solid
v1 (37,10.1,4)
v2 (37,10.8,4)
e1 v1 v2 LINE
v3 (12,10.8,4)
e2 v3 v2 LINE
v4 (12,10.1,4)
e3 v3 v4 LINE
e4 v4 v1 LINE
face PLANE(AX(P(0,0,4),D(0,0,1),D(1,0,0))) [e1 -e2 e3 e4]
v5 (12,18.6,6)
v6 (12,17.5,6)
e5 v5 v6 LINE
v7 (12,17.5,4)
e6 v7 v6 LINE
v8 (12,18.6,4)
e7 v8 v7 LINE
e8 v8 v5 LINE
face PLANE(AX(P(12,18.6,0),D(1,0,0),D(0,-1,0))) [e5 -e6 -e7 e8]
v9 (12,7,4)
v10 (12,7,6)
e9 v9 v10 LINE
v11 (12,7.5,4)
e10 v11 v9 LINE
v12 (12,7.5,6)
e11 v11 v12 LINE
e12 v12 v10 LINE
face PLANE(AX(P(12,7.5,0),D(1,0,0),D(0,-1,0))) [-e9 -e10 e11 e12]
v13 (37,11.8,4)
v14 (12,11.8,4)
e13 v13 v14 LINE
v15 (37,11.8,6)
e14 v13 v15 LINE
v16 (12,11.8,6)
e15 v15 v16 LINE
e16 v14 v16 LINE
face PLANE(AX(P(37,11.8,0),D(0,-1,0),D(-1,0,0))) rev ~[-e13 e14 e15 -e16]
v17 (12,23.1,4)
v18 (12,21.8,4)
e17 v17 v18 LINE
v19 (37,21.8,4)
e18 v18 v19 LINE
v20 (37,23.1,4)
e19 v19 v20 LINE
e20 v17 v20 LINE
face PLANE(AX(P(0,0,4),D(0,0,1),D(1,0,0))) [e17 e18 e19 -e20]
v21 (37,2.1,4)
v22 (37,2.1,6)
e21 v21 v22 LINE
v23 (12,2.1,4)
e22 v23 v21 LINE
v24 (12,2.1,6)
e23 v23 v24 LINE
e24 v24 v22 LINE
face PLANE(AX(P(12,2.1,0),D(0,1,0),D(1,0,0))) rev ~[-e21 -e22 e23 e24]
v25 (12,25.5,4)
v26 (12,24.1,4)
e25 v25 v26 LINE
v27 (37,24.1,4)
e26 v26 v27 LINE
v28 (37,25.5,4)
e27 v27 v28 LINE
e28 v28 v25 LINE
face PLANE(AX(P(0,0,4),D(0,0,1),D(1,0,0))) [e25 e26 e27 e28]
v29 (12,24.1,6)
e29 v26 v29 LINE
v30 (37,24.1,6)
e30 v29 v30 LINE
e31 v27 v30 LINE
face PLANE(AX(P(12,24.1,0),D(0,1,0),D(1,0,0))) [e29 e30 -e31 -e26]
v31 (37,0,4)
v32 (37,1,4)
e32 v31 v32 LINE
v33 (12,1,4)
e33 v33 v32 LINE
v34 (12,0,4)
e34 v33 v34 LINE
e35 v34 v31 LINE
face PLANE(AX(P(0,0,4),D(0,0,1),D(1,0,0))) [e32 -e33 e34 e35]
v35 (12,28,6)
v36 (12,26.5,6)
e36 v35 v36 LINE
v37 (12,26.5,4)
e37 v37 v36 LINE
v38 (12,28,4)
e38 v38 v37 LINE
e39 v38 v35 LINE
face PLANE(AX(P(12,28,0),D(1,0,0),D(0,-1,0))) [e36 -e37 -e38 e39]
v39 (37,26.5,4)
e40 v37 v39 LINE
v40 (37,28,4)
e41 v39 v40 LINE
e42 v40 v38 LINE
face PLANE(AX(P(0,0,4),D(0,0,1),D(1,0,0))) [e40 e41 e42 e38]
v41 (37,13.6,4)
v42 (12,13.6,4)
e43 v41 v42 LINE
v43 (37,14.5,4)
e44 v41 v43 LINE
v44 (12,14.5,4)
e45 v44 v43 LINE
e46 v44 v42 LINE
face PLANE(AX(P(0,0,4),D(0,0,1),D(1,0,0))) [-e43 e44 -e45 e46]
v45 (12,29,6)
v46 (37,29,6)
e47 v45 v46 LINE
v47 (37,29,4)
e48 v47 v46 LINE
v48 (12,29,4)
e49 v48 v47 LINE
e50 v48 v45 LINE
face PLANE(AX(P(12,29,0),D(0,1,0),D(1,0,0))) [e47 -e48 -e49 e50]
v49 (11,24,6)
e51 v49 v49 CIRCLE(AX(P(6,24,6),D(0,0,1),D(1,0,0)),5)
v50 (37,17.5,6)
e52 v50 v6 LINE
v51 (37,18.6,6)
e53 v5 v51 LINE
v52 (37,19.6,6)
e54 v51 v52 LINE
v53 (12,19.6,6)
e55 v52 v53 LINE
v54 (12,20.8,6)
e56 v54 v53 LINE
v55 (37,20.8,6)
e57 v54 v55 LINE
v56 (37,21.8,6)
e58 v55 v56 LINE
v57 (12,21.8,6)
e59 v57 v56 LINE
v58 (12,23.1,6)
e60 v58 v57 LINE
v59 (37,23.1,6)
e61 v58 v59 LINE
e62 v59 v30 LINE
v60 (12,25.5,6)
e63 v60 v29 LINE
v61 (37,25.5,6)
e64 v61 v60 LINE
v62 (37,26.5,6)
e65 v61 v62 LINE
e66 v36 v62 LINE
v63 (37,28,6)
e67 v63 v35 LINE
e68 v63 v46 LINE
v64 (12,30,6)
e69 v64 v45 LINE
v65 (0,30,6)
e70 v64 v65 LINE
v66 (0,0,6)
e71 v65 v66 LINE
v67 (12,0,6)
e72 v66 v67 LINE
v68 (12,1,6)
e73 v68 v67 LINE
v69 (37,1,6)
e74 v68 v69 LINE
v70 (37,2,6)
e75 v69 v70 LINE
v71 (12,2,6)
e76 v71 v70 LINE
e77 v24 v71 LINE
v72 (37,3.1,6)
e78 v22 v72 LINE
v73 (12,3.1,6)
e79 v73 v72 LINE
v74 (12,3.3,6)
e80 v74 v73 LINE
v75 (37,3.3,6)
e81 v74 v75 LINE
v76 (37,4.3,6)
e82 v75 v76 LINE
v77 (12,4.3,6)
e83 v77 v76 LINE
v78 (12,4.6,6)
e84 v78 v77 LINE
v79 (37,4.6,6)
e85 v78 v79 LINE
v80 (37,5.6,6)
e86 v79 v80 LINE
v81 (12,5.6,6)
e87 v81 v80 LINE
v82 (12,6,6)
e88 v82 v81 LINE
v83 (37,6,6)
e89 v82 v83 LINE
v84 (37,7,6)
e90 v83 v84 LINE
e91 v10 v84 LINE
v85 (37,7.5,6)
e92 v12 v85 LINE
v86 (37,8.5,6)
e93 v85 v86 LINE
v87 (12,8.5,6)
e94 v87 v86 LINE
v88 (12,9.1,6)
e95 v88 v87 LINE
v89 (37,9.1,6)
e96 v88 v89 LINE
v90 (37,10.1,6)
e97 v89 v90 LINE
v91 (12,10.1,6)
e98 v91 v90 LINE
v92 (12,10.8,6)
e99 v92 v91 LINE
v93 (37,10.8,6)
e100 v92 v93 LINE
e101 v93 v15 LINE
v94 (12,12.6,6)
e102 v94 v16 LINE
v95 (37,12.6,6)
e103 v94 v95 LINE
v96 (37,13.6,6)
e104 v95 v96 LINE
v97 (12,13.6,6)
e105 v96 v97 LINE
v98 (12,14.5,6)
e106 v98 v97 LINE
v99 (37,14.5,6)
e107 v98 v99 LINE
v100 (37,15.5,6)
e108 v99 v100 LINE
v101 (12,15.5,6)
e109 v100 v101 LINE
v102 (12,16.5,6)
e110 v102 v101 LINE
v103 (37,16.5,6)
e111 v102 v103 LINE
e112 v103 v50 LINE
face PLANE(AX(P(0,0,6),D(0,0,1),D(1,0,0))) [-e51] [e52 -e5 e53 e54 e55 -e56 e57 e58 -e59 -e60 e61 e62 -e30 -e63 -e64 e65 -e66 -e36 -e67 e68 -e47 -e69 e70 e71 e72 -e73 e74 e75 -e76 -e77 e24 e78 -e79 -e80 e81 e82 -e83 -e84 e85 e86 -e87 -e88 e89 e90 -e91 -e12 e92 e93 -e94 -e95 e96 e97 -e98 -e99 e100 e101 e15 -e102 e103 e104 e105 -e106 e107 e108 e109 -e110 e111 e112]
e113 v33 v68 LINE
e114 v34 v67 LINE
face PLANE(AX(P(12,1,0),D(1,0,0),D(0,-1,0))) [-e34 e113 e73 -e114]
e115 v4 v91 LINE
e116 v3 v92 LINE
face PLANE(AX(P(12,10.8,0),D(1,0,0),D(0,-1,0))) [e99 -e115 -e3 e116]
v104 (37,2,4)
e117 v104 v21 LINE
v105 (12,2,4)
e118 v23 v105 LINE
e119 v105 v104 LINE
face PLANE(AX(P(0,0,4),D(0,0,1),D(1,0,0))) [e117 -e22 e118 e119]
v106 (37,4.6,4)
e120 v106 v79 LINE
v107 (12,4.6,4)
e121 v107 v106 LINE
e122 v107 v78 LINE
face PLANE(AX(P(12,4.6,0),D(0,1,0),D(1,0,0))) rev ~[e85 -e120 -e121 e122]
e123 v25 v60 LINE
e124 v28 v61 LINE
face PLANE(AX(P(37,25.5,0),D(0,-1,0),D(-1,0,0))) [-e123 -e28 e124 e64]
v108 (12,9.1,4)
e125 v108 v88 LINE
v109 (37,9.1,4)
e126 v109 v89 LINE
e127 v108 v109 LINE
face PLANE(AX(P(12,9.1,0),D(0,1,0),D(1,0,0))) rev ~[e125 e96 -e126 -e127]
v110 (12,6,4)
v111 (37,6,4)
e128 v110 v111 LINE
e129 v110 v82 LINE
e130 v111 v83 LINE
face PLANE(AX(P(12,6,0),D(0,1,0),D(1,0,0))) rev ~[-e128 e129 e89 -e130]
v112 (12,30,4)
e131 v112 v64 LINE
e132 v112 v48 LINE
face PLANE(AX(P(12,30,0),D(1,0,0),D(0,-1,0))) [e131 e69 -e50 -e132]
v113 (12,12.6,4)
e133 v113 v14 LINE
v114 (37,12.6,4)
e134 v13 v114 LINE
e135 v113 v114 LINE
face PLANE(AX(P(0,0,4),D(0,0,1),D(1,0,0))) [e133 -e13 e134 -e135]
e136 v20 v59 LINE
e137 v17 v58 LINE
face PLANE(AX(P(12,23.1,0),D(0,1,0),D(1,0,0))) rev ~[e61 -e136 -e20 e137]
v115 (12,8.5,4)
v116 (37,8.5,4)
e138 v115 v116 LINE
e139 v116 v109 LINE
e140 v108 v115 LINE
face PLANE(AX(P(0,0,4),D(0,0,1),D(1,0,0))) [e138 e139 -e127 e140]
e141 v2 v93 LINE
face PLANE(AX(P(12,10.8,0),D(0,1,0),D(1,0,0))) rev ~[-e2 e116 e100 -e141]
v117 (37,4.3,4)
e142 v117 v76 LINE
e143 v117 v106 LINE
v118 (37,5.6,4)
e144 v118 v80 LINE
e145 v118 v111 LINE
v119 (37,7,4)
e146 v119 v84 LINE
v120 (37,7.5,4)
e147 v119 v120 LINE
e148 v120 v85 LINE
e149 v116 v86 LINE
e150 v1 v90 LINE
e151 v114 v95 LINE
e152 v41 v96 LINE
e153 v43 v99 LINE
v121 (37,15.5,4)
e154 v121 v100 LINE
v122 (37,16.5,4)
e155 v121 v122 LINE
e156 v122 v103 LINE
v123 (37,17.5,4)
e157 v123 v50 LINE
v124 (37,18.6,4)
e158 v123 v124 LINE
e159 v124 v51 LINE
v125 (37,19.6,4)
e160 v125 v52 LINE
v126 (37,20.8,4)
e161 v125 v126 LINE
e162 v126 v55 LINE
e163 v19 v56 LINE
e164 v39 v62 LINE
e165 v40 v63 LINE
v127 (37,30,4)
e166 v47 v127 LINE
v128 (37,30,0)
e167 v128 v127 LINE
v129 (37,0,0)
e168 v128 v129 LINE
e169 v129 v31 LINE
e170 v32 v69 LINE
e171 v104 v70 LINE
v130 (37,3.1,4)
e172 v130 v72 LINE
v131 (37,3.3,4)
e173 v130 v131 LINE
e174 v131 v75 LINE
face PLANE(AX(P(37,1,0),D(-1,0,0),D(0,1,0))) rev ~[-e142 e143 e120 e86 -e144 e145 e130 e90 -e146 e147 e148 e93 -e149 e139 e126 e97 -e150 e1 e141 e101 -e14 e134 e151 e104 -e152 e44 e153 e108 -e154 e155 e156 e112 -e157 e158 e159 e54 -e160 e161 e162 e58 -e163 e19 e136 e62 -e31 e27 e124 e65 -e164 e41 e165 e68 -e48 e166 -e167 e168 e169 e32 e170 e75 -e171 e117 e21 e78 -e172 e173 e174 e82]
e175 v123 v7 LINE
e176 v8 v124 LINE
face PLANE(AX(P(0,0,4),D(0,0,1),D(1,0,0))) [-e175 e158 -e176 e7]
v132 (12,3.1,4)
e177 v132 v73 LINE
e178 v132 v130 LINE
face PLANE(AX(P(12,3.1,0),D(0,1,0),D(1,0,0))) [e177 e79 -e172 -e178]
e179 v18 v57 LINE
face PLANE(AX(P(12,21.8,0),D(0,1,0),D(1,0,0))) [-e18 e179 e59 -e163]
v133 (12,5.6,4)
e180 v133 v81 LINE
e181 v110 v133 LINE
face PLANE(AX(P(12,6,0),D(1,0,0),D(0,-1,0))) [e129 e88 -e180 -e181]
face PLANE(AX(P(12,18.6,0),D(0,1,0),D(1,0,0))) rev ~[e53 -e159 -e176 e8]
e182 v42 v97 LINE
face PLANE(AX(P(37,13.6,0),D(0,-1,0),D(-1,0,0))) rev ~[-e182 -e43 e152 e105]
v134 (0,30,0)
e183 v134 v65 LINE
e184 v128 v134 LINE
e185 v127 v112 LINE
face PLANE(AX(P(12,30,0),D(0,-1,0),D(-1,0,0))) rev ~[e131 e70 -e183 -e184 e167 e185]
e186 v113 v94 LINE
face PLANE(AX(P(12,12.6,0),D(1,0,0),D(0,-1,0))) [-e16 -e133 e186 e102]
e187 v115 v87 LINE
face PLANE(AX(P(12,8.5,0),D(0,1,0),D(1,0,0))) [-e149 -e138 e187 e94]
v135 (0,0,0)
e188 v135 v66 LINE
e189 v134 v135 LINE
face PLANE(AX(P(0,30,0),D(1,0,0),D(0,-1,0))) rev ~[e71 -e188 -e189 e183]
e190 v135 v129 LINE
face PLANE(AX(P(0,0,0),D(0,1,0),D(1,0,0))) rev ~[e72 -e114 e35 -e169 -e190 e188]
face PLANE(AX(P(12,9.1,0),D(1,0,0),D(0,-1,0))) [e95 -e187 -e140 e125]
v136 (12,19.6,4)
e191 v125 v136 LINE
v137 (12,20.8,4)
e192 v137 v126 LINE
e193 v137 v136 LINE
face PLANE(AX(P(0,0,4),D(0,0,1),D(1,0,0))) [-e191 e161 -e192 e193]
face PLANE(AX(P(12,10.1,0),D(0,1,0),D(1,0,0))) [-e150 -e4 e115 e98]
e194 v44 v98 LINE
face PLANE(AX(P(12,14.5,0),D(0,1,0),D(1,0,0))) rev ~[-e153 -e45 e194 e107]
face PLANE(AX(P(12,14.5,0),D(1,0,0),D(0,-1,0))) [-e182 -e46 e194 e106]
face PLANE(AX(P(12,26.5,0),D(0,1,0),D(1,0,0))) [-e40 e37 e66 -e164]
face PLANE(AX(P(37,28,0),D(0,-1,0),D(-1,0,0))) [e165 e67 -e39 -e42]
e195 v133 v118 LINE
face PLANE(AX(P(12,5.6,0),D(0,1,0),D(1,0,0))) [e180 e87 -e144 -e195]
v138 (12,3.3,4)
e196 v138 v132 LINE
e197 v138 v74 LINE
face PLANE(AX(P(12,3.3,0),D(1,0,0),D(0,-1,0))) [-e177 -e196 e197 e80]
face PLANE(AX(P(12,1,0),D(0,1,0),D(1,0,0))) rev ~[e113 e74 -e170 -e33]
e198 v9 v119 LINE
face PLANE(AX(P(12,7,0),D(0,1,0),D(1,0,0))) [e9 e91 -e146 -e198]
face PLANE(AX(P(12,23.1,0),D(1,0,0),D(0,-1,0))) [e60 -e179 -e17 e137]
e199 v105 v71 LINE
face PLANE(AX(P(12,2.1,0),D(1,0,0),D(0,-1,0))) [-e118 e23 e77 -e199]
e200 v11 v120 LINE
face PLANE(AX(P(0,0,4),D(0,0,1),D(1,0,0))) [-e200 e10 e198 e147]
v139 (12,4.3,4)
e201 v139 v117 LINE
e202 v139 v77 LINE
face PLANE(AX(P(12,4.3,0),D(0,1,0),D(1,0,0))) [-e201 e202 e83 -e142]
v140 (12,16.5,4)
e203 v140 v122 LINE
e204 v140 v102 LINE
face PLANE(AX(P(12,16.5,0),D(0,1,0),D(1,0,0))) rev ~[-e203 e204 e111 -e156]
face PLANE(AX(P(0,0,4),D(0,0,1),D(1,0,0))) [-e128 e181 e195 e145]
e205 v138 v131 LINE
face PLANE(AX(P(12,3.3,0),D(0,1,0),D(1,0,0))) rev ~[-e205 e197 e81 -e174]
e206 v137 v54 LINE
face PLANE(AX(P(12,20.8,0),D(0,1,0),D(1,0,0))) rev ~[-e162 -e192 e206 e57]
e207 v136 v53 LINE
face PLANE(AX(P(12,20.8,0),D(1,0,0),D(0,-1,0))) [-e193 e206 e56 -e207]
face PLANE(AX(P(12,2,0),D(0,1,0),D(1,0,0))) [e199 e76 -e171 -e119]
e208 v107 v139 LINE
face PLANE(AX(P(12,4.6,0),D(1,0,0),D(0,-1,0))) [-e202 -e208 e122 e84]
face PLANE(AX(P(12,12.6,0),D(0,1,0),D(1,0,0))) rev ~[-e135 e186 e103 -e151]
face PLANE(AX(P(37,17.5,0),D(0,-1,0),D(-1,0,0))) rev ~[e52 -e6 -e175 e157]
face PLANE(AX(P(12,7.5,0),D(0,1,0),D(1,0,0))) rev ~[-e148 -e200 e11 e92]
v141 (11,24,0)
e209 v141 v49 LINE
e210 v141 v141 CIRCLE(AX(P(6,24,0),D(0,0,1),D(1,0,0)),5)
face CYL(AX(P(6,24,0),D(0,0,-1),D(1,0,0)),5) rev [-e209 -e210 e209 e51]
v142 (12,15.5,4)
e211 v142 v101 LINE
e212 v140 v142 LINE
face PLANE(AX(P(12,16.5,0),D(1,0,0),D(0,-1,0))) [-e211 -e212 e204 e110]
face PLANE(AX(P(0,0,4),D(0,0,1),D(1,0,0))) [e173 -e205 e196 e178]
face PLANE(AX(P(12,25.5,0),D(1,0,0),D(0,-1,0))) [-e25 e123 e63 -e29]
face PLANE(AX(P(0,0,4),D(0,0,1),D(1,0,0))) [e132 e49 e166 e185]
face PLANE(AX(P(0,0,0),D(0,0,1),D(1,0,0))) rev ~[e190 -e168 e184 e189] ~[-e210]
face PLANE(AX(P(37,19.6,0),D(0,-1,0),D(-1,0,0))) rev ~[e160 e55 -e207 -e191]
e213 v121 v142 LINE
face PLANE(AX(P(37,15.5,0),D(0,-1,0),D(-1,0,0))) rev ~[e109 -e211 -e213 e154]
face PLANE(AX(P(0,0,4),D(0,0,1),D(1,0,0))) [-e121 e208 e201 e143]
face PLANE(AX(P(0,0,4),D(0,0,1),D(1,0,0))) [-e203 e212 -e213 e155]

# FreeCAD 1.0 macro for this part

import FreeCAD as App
import Part
import Sketcher
from FreeCAD import Vector

doc = App.newDocument("Part")
body = doc.addObject("PartDesign::Body", "Body")

sketch1 = body.newObject("Sketcher::SketchObject", "Sketch")
sketch1.AttachmentSupport = (doc.getObject("XY_Plane"), [""])
sketch1.MapMode = "FlatFace"
sketch1.addGeometry(Part.LineSegment(Vector(0, 30, 0), Vector(0, 0, 0)), False)
sketch1.addGeometry(Part.LineSegment(Vector(0, 0, 0), Vector(12, 0, 0)), False)
sketch1.addGeometry(Part.LineSegment(Vector(12, 0, 0), Vector(12, 30, 0)), False)
sketch1.addGeometry(Part.LineSegment(Vector(12, 30, 0), Vector(0, 30, 0)), False)
sketch1.addGeometry(Part.Circle(Vector(6, 24, 0), Vector(0, 0, 1), 5), False)
sketch1.addConstraint(Sketcher.Constraint("Coincident", 0, 2, 1, 1))
sketch1.addConstraint(Sketcher.Constraint("Coincident", 1, 2, 2, 1))
sketch1.addConstraint(Sketcher.Constraint("Coincident", 2, 2, 3, 1))
sketch1.addConstraint(Sketcher.Constraint("Coincident", 3, 2, 0, 1))
sketch1.addConstraint(Sketcher.Constraint("Vertical", 0))
sketch1.addConstraint(Sketcher.Constraint("Horizontal", 1))
sketch1.addConstraint(Sketcher.Constraint("Vertical", 2))
sketch1.addConstraint(Sketcher.Constraint("Horizontal", 3))
sketch1.addConstraint(Sketcher.Constraint("Coincident", 0, 2, -1, 1))
sketch1.addConstraint(Sketcher.Constraint("Diameter", 4, 10.0))
sketch1.addConstraint(Sketcher.Constraint("DistanceY", 0, 2, 0, 1, 30.0))
sketch1.addConstraint(Sketcher.Constraint("DistanceX", 1, 1, 1, 2, 12.0))
sketch1.addConstraint(Sketcher.Constraint("DistanceX", -1, 1, 4, 3, 6.0))
sketch1.addConstraint(Sketcher.Constraint("DistanceY", -1, 1, 4, 3, 24.0))
pad1 = body.newObject("PartDesign::Pad", "Pad")
pad1.Profile = sketch1
pad1.Length = 6

sketch2 = body.newObject("Sketcher::SketchObject", "Sketch001")
sketch2.AttachmentSupport = (doc.getObject("XY_Plane"), [""])
sketch2.MapMode = "FlatFace"
sketch2.addGeometry(Part.LineSegment(Vector(12, 2, 0), Vector(12, 1, 0)), False)
sketch2.addGeometry(Part.LineSegment(Vector(12, 1, 0), Vector(37, 1, 0)), False)
sketch2.addGeometry(Part.LineSegment(Vector(37, 1, 0), Vector(37, 2, 0)), False)
sketch2.addGeometry(Part.LineSegment(Vector(37, 2, 0), Vector(12, 2, 0)), False)
sketch2.addGeometry(Part.LineSegment(Vector(37, 29, 0), Vector(12, 29, 0)), False)
sketch2.addGeometry(Part.LineSegment(Vector(12, 29, 0), Vector(12, 28, 0)), False)
sketch2.addGeometry(Part.LineSegment(Vector(12, 28, 0), Vector(37, 28, 0)), False)
sketch2.addGeometry(Part.LineSegment(Vector(37, 28, 0), Vector(37, 29, 0)), False)
sketch2.addGeometry(Part.LineSegment(Vector(12, 3.1, 0), Vector(12, 2.1, 0)), False)
sketch2.addGeometry(Part.LineSegment(Vector(12, 2.1, 0), Vector(37, 2.1, 0)), False)
sketch2.addGeometry(Part.LineSegment(Vector(37, 2.1, 0), Vector(37, 3.1, 0)), False)
sketch2.addGeometry(Part.LineSegment(Vector(37, 3.1, 0), Vector(12, 3.1, 0)), False)
sketch2.addGeometry(Part.LineSegment(Vector(37, 26.5, 0), Vector(12, 26.5, 0)), False)
sketch2.addGeometry(Part.LineSegment(Vector(12, 26.5, 0), Vector(12, 25.5, 0)), False)
sketch2.addGeometry(Part.LineSegment(Vector(12, 25.5, 0), Vector(37, 25.5, 0)), False)
sketch2.addGeometry(Part.LineSegment(Vector(37, 25.5, 0), Vector(37, 26.5, 0)), False)
sketch2.addGeometry(Part.LineSegment(Vector(12, 4.3, 0), Vector(12, 3.3, 0)), False)
sketch2.addGeometry(Part.LineSegment(Vector(12, 3.3, 0), Vector(37, 3.3, 0)), False)
sketch2.addGeometry(Part.LineSegment(Vector(37, 3.3, 0), Vector(37, 4.3, 0)), False)
sketch2.addGeometry(Part.LineSegment(Vector(37, 4.3, 0), Vector(12, 4.3, 0)), False)
sketch2.addGeometry(Part.LineSegment(Vector(37, 24.1, 0), Vector(12, 24.1, 0)), False)
sketch2.addGeometry(Part.LineSegment(Vector(12, 24.1, 0), Vector(12, 23.1, 0)), False)
sketch2.addGeometry(Part.LineSegment(Vector(12, 23.1, 0), Vector(37, 23.1, 0)), False)
sketch2.addGeometry(Part.LineSegment(Vector(37, 23.1, 0), Vector(37, 24.1, 0)), False)
sketch2.addGeometry(Part.LineSegment(Vector(12, 5.6, 0), Vector(12, 4.6, 0)), False)
sketch2.addGeometry(Part.LineSegment(Vector(12, 4.6, 0), Vector(37, 4.6, 0)), False)
sketch2.addGeometry(Part.LineSegment(Vector(37, 4.6, 0), Vector(37, 5.6, 0)), False)
sketch2.addGeometry(Part.LineSegment(Vector(37, 5.6, 0), Vector(12, 5.6, 0)), False)
sketch2.addGeometry(Part.LineSegment(Vector(37, 21.8, 0), Vector(12, 21.8, 0)), False)
sketch2.addGeometry(Part.LineSegment(Vector(12, 21.8, 0), Vector(12, 20.8, 0)), False)
sketch2.addGeometry(Part.LineSegment(Vector(12, 20.8, 0), Vector(37, 20.8, 0)), False)
sketch2.addGeometry(Part.LineSegment(Vector(37, 20.8, 0), Vector(37, 21.8, 0)), False)
sketch2.addGeometry(Part.LineSegment(Vector(12, 7, 0), Vector(12, 6, 0)), False)
sketch2.addGeometry(Part.LineSegment(Vector(12, 6, 0), Vector(37, 6, 0)), False)
sketch2.addGeometry(Part.LineSegment(Vector(37, 6, 0), Vector(37, 7, 0)), False)
sketch2.addGeometry(Part.LineSegment(Vector(37, 7, 0), Vector(12, 7, 0)), False)
sketch2.addGeometry(Part.LineSegment(Vector(37, 19.6, 0), Vector(12, 19.6, 0)), False)
sketch2.addGeometry(Part.LineSegment(Vector(12, 19.6, 0), Vector(12, 18.6, 0)), False)
sketch2.addGeometry(Part.LineSegment(Vector(12, 18.6, 0), Vector(37, 18.6, 0)), False)
sketch2.addGeometry(Part.LineSegment(Vector(37, 18.6, 0), Vector(37, 19.6, 0)), False)
sketch2.addGeometry(Part.LineSegment(Vector(12, 8.5, 0), Vector(12, 7.5, 0)), False)
sketch2.addGeometry(Part.LineSegment(Vector(12, 7.5, 0), Vector(37, 7.5, 0)), False)
sketch2.addGeometry(Part.LineSegment(Vector(37, 7.5, 0), Vector(37, 8.5, 0)), False)
sketch2.addGeometry(Part.LineSegment(Vector(37, 8.5, 0), Vector(12, 8.5, 0)), False)
sketch2.addGeometry(Part.LineSegment(Vector(37, 17.5, 0), Vector(12, 17.5, 0)), False)
sketch2.addGeometry(Part.LineSegment(Vector(12, 17.5, 0), Vector(12, 16.5, 0)), False)
sketch2.addGeometry(Part.LineSegment(Vector(12, 16.5, 0), Vector(37, 16.5, 0)), False)
sketch2.addGeometry(Part.LineSegment(Vector(37, 16.5, 0), Vector(37, 17.5, 0)), False)
sketch2.addGeometry(Part.LineSegment(Vector(12, 10.1, 0), Vector(12, 9.1, 0)), False)
sketch2.addGeometry(Part.LineSegment(Vector(12, 9.1, 0), Vector(37, 9.1, 0)), False)
sketch2.addGeometry(Part.LineSegment(Vector(37, 9.1, 0), Vector(37, 10.1, 0)), False)
sketch2.addGeometry(Part.LineSegment(Vector(37, 10.1, 0), Vector(12, 10.1, 0)), False)
sketch2.addGeometry(Part.LineSegment(Vector(37, 15.5, 0), Vector(12, 15.5, 0)), False)
sketch2.addGeometry(Part.LineSegment(Vector(12, 15.5, 0), Vector(12, 14.5, 0)), False)
sketch2.addGeometry(Part.LineSegment(Vector(12, 14.5, 0), Vector(37, 14.5, 0)), False)
sketch2.addGeometry(Part.LineSegment(Vector(37, 14.5, 0), Vector(37, 15.5, 0)), False)
sketch2.addGeometry(Part.LineSegment(Vector(12, 11.8, 0), Vector(12, 10.8, 0)), False)
sketch2.addGeometry(Part.LineSegment(Vector(12, 10.8, 0), Vector(37, 10.8, 0)), False)
sketch2.addGeometry(Part.LineSegment(Vector(37, 10.8, 0), Vector(37, 11.8, 0)), False)
sketch2.addGeometry(Part.LineSegment(Vector(37, 11.8, 0), Vector(12, 11.8, 0)), False)
sketch2.addGeometry(Part.LineSegment(Vector(37, 13.6, 0), Vector(12, 13.6, 0)), False)
sketch2.addGeometry(Part.LineSegment(Vector(12, 13.6, 0), Vector(12, 12.6, 0)), False)
sketch2.addGeometry(Part.LineSegment(Vector(12, 12.6, 0), Vector(37, 12.6, 0)), False)
sketch2.addGeometry(Part.LineSegment(Vector(37, 12.6, 0), Vector(37, 13.6, 0)), False)
sketch2.addConstraint(Sketcher.Constraint("Coincident", 0, 2, 1, 1))
sketch2.addConstraint(Sketcher.Constraint("Coincident", 1, 2, 2, 1))
sketch2.addConstraint(Sketcher.Constraint("Coincident", 2, 2, 3, 1))
sketch2.addConstraint(Sketcher.Constraint("Coincident", 3, 2, 0, 1))
sketch2.addConstraint(Sketcher.Constraint("Coincident", 4, 2, 5, 1))
sketch2.addConstraint(Sketcher.Constraint("Coincident", 5, 2, 6, 1))
sketch2.addConstraint(Sketcher.Constraint("Coincident", 6, 2, 7, 1))
sketch2.addConstraint(Sketcher.Constraint("Coincident", 7, 2, 4, 1))
sketch2.addConstraint(Sketcher.Constraint("Coincident", 8, 2, 9, 1))
sketch2.addConstraint(Sketcher.Constraint("Coincident", 9, 2, 10, 1))
sketch2.addConstraint(Sketcher.Constraint("Coincident", 10, 2, 11, 1))
sketch2.addConstraint(Sketcher.Constraint("Coincident", 11, 2, 8, 1))
sketch2.addConstraint(Sketcher.Constraint("Coincident", 12, 2, 13, 1))
sketch2.addConstraint(Sketcher.Constraint("Coincident", 13, 2, 14, 1))
sketch2.addConstraint(Sketcher.Constraint("Coincident", 14, 2, 15, 1))
sketch2.addConstraint(Sketcher.Constraint("Coincident", 15, 2, 12, 1))
sketch2.addConstraint(Sketcher.Constraint("Coincident", 16, 2, 17, 1))
sketch2.addConstraint(Sketcher.Constraint("Coincident", 17, 2, 18, 1))
sketch2.addConstraint(Sketcher.Constraint("Coincident", 18, 2, 19, 1))
sketch2.addConstraint(Sketcher.Constraint("Coincident", 19, 2, 16, 1))
sketch2.addConstraint(Sketcher.Constraint("Coincident", 20, 2, 21, 1))
sketch2.addConstraint(Sketcher.Constraint("Coincident", 21, 2, 22, 1))
sketch2.addConstraint(Sketcher.Constraint("Coincident", 22, 2, 23, 1))
sketch2.addConstraint(Sketcher.Constraint("Coincident", 23, 2, 20, 1))
sketch2.addConstraint(Sketcher.Constraint("Coincident", 24, 2, 25, 1))
sketch2.addConstraint(Sketcher.Constraint("Coincident", 25, 2, 26, 1))
sketch2.addConstraint(Sketcher.Constraint("Coincident", 26, 2, 27, 1))
sketch2.addConstraint(Sketcher.Constraint("Coincident", 27, 2, 24, 1))
sketch2.addConstraint(Sketcher.Constraint("Coincident", 28, 2, 29, 1))
sketch2.addConstraint(Sketcher.Constraint("Coincident", 29, 2, 30, 1))
sketch2.addConstraint(Sketcher.Constraint("Coincident", 30, 2, 31, 1))
sketch2.addConstraint(Sketcher.Constraint("Coincident", 31, 2, 28, 1))
sketch2.addConstraint(Sketcher.Constraint("Coincident", 32, 2, 33, 1))
sketch2.addConstraint(Sketcher.Constraint("Coincident", 33, 2, 34, 1))
sketch2.addConstraint(Sketcher.Constraint("Coincident", 34, 2, 35, 1))
sketch2.addConstraint(Sketcher.Constraint("Coincident", 35, 2, 32, 1))
sketch2.addConstraint(Sketcher.Constraint("Coincident", 36, 2, 37, 1))
sketch2.addConstraint(Sketcher.Constraint("Coincident", 37, 2, 38, 1))
sketch2.addConstraint(Sketcher.Constraint("Coincident", 38, 2, 39, 1))
sketch2.addConstraint(Sketcher.Constraint("Coincident", 39, 2, 36, 1))
sketch2.addConstraint(Sketcher.Constraint("Coincident", 40, 2, 41, 1))
sketch2.addConstraint(Sketcher.Constraint("Coincident", 41, 2, 42, 1))
sketch2.addConstraint(Sketcher.Constraint("Coincident", 42, 2, 43, 1))
sketch2.addConstraint(Sketcher.Constraint("Coincident", 43, 2, 40, 1))
sketch2.addConstraint(Sketcher.Constraint("Coincident", 44, 2, 45, 1))
sketch2.addConstraint(Sketcher.Constraint("Coincident", 45, 2, 46, 1))
sketch2.addConstraint(Sketcher.Constraint("Coincident", 46, 2, 47, 1))
sketch2.addConstraint(Sketcher.Constraint("Coincident", 47, 2, 44, 1))
sketch2.addConstraint(Sketcher.Constraint("Coincident", 48, 2, 49, 1))
sketch2.addConstraint(Sketcher.Constraint("Coincident", 49, 2, 50, 1))
sketch2.addConstraint(Sketcher.Constraint("Coincident", 50, 2, 51, 1))
sketch2.addConstraint(Sketcher.Constraint("Coincident", 51, 2, 48, 1))
sketch2.addConstraint(Sketcher.Constraint("Coincident", 52, 2, 53, 1))
sketch2.addConstraint(Sketcher.Constraint("Coincident", 53, 2, 54, 1))
sketch2.addConstraint(Sketcher.Constraint("Coincident", 54, 2, 55, 1))
sketch2.addConstraint(Sketcher.Constraint("Coincident", 55, 2, 52, 1))
sketch2.addConstraint(Sketcher.Constraint("Coincident", 56, 2, 57, 1))
sketch2.addConstraint(Sketcher.Constraint("Coincident", 57, 2, 58, 1))
sketch2.addConstraint(Sketcher.Constraint("Coincident", 58, 2, 59, 1))
sketch2.addConstraint(Sketcher.Constraint("Coincident", 59, 2, 56, 1))
sketch2.addConstraint(Sketcher.Constraint("Coincident", 60, 2, 61, 1))
sketch2.addConstraint(Sketcher.Constraint("Coincident", 61, 2, 62, 1))
sketch2.addConstraint(Sketcher.Constraint("Coincident", 62, 2, 63, 1))
sketch2.addConstraint(Sketcher.Constraint("Coincident", 63, 2, 60, 1))
sketch2.addConstraint(Sketcher.Constraint("Vertical", 0))
sketch2.addConstraint(Sketcher.Constraint("Horizontal", 1))
sketch2.addConstraint(Sketcher.Constraint("Vertical", 2))
sketch2.addConstraint(Sketcher.Constraint("Horizontal", 3))
sketch2.addConstraint(Sketcher.Constraint("Horizontal", 4))
sketch2.addConstraint(Sketcher.Constraint("Vertical", 5))
sketch2.addConstraint(Sketcher.Constraint("Horizontal", 6))
sketch2.addConstraint(Sketcher.Constraint("Vertical", 7))
sketch2.addConstraint(Sketcher.Constraint("Vertical", 8))
sketch2.addConstraint(Sketcher.Constraint("Horizontal", 9))
sketch2.addConstraint(Sketcher.Constraint("Vertical", 10))
sketch2.addConstraint(Sketcher.Constraint("Horizontal", 11))
sketch2.addConstraint(Sketcher.Constraint("Horizontal", 12))
sketch2.addConstraint(Sketcher.Constraint("Vertical", 13))
sketch2.addConstraint(Sketcher.Constraint("Horizontal", 14))
sketch2.addConstraint(Sketcher.Constraint("Vertical", 15))
sketch2.addConstraint(Sketcher.Constraint("Vertical", 16))
sketch2.addConstraint(Sketcher.Constraint("Horizontal", 17))
sketch2.addConstraint(Sketcher.Constraint("Vertical", 18))
sketch2.addConstraint(Sketcher.Constraint("Horizontal", 19))
sketch2.addConstraint(Sketcher.Constraint("Horizontal", 20))
sketch2.addConstraint(Sketcher.Constraint("Vertical", 21))
sketch2.addConstraint(Sketcher.Constraint("Horizontal", 22))
sketch2.addConstraint(Sketcher.Constraint("Vertical", 23))
sketch2.addConstraint(Sketcher.Constraint("Vertical", 24))
sketch2.addConstraint(Sketcher.Constraint("Horizontal", 25))
sketch2.addConstraint(Sketcher.Constraint("Vertical", 26))
sketch2.addConstraint(Sketcher.Constraint("Horizontal", 27))
sketch2.addConstraint(Sketcher.Constraint("Horizontal", 28))
sketch2.addConstraint(Sketcher.Constraint("Vertical", 29))
sketch2.addConstraint(Sketcher.Constraint("Horizontal", 30))
sketch2.addConstraint(Sketcher.Constraint("Vertical", 31))
sketch2.addConstraint(Sketcher.Constraint("Vertical", 32))
sketch2.addConstraint(Sketcher.Constraint("Horizontal", 33))
sketch2.addConstraint(Sketcher.Constraint("Vertical", 34))
sketch2.addConstraint(Sketcher.Constraint("Horizontal", 35))
sketch2.addConstraint(Sketcher.Constraint("Horizontal", 36))
sketch2.addConstraint(Sketcher.Constraint("Vertical", 37))
sketch2.addConstraint(Sketcher.Constraint("Horizontal", 38))
sketch2.addConstraint(Sketcher.Constraint("Vertical", 39))
sketch2.addConstraint(Sketcher.Constraint("Vertical", 40))
sketch2.addConstraint(Sketcher.Constraint("Horizontal", 41))
sketch2.addConstraint(Sketcher.Constraint("Vertical", 42))
sketch2.addConstraint(Sketcher.Constraint("Horizontal", 43))
sketch2.addConstraint(Sketcher.Constraint("Horizontal", 44))
sketch2.addConstraint(Sketcher.Constraint("Vertical", 45))
sketch2.addConstraint(Sketcher.Constraint("Horizontal", 46))
sketch2.addConstraint(Sketcher.Constraint("Vertical", 47))
sketch2.addConstraint(Sketcher.Constraint("Vertical", 48))
sketch2.addConstraint(Sketcher.Constraint("Horizontal", 49))
sketch2.addConstraint(Sketcher.Constraint("Vertical", 50))
sketch2.addConstraint(Sketcher.Constraint("Horizontal", 51))
sketch2.addConstraint(Sketcher.Constraint("Horizontal", 52))
sketch2.addConstraint(Sketcher.Constraint("Vertical", 53))
sketch2.addConstraint(Sketcher.Constraint("Horizontal", 54))
sketch2.addConstraint(Sketcher.Constraint("Vertical", 55))
sketch2.addConstraint(Sketcher.Constraint("Vertical", 56))
sketch2.addConstraint(Sketcher.Constraint("Horizontal", 57))
sketch2.addConstraint(Sketcher.Constraint("Vertical", 58))
sketch2.addConstraint(Sketcher.Constraint("Horizontal", 59))
sketch2.addConstraint(Sketcher.Constraint("Horizontal", 60))
sketch2.addConstraint(Sketcher.Constraint("Vertical", 61))
sketch2.addConstraint(Sketcher.Constraint("Horizontal", 62))
sketch2.addConstraint(Sketcher.Constraint("Vertical", 63))
sketch2.addConstraint(Sketcher.Constraint("Vertical", 3, 2, 4, 2))
sketch2.addConstraint(Sketcher.Constraint("Vertical", 2, 2, 6, 2))
sketch2.addConstraint(Sketcher.Constraint("Vertical", 5, 2, 8, 2))
sketch2.addConstraint(Sketcher.Constraint("Vertical", 7, 2, 9, 2))
sketch2.addConstraint(Sketcher.Constraint("Vertical", 11, 2, 12, 2))
sketch2.addConstraint(Sketcher.Constraint("Vertical", 10, 2, 14, 2))
sketch2.addConstraint(Sketcher.Constraint("Vertical", 13, 2, 16, 2))
sketch2.addConstraint(Sketcher.Constraint("Vertical", 15, 2, 17, 2))
sketch2.addConstraint(Sketcher.Constraint("Vertical", 19, 2, 20, 2))
sketch2.addConstraint(Sketcher.Constraint("Vertical", 18, 2, 22, 2))
sketch2.addConstraint(Sketcher.Constraint("Vertical", 21, 2, 24, 2))
sketch2.addConstraint(Sketcher.Constraint("Vertical", 23, 2, 25, 2))
sketch2.addConstraint(Sketcher.Constraint("Vertical", 27, 2, 28, 2))
sketch2.addConstraint(Sketcher.Constraint("Vertical", 26, 2, 30, 2))
sketch2.addConstraint(Sketcher.Constraint("Vertical", 29, 2, 32, 2))
sketch2.addConstraint(Sketcher.Constraint("Vertical", 31, 2, 33, 2))
sketch2.addConstraint(Sketcher.Constraint("Vertical", 35, 2, 36, 2))
sketch2.addConstraint(Sketcher.Constraint("Vertical", 34, 2, 38, 2))
sketch2.addConstraint(Sketcher.Constraint("Vertical", 37, 2, 40, 2))
sketch2.addConstraint(Sketcher.Constraint("Vertical", 39, 2, 41, 2))
sketch2.addConstraint(Sketcher.Constraint("Vertical", 43, 2, 44, 2))
sketch2.addConstraint(Sketcher.Constraint("Vertical", 42, 2, 46, 2))
sketch2.addConstraint(Sketcher.Constraint("Vertical", 45, 2, 48, 2))
sketch2.addConstraint(Sketcher.Constraint("Vertical", 47, 2, 49, 2))
sketch2.addConstraint(Sketcher.Constraint("Vertical", 51, 2, 52, 2))
sketch2.addConstraint(Sketcher.Constraint("Vertical", 50, 2, 54, 2))
sketch2.addConstraint(Sketcher.Constraint("Vertical", 53, 2, 56, 2))
sketch2.addConstraint(Sketcher.Constraint("Vertical", 55, 2, 57, 2))
sketch2.addConstraint(Sketcher.Constraint("Vertical", 59, 2, 60, 2))
sketch2.addConstraint(Sketcher.Constraint("Vertical", 58, 2, 62, 2))
sketch2.addConstraint(Sketcher.Constraint("Equal", 2, 5))
sketch2.addConstraint(Sketcher.Constraint("Equal", 7, 8))
sketch2.addConstraint(Sketcher.Constraint("Equal", 10, 13))
sketch2.addConstraint(Sketcher.Constraint("Equal", 15, 16))
sketch2.addConstraint(Sketcher.Constraint("Equal", 18, 21))
sketch2.addConstraint(Sketcher.Constraint("Equal", 23, 24))
sketch2.addConstraint(Sketcher.Constraint("Equal", 26, 29))
sketch2.addConstraint(Sketcher.Constraint("Equal", 31, 32))
sketch2.addConstraint(Sketcher.Constraint("Equal", 34, 37))
sketch2.addConstraint(Sketcher.Constraint("Equal", 39, 40))
sketch2.addConstraint(Sketcher.Constraint("Equal", 42, 45))
sketch2.addConstraint(Sketcher.Constraint("Equal", 47, 48))
sketch2.addConstraint(Sketcher.Constraint("Equal", 50, 53))
sketch2.addConstraint(Sketcher.Constraint("Equal", 55, 56))
sketch2.addConstraint(Sketcher.Constraint("Equal", 58, 61))
sketch2.addConstraint(Sketcher.Constraint("DistanceX", 1, 1, 1, 2, 25.0))
sketch2.addConstraint(Sketcher.Constraint("DistanceY", 0, 2, 0, 1, 1.0))
sketch2.addConstraint(Sketcher.Constraint("DistanceY", -1, 1, 0, 2, 1.0))
sketch2.addConstraint(Sketcher.Constraint("DistanceX", -1, 1, 1, 2, 37.0))
sketch2.addConstraint(Sketcher.Constraint("DistanceY", -1, 1, 4, 2, 29.0))
sketch2.addConstraint(Sketcher.Constraint("DistanceY", -1, 1, 32, 2, 6.0))
sketch2.addConstraint(Sketcher.Constraint("DistanceY", -1, 1, 8, 2, 2.1))
sketch2.addConstraint(Sketcher.Constraint("DistanceY", -1, 1, 12, 2, 26.5))
sketch2.addConstraint(Sketcher.Constraint("DistanceY", -1, 1, 16, 2, 3.3))
sketch2.addConstraint(Sketcher.Constraint("DistanceY", -1, 1, 20, 2, 24.1))
sketch2.addConstraint(Sketcher.Constraint("DistanceY", -1, 1, 24, 2, 4.6))
sketch2.addConstraint(Sketcher.Constraint("DistanceY", -1, 1, 28, 2, 21.8))
sketch2.addConstraint(Sketcher.Constraint("DistanceY", -1, 1, 36, 2, 19.6))
sketch2.addConstraint(Sketcher.Constraint("DistanceY", -1, 1, 40, 2, 7.5))
sketch2.addConstraint(Sketcher.Constraint("DistanceY", -1, 1, 44, 2, 17.5))
sketch2.addConstraint(Sketcher.Constraint("DistanceY", -1, 1, 48, 2, 9.1))
sketch2.addConstraint(Sketcher.Constraint("DistanceY", -1, 1, 52, 2, 15.5))
sketch2.addConstraint(Sketcher.Constraint("DistanceY", -1, 1, 56, 2, 10.8))
sketch2.addConstraint(Sketcher.Constraint("DistanceY", -1, 1, 60, 2, 13.6))
pad2 = body.newObject("PartDesign::Pad", "Pad001")
pad2.Profile = sketch2
pad2.Length = 6

sketch3 = body.newObject("Sketcher::SketchObject", "Sketch002")
sketch3.AttachmentSupport = (doc.getObject("XY_Plane"), [""])
sketch3.MapMode = "FlatFace"
sketch3.addGeometry(Part.LineSegment(Vector(12, 1, 0), Vector(12, 0, 0)), False)
sketch3.addGeometry(Part.LineSegment(Vector(12, 0, 0), Vector(37, 0, 0)), False)
sketch3.addGeometry(Part.LineSegment(Vector(37, 0, 0), Vector(37, 1, 0)), False)
sketch3.addGeometry(Part.LineSegment(Vector(37, 1, 0), Vector(12, 1, 0)), False)
sketch3.addGeometry(Part.LineSegment(Vector(37, 30, 0), Vector(12, 30, 0)), False)
sketch3.addGeometry(Part.LineSegment(Vector(12, 30, 0), Vector(12, 29, 0)), False)
sketch3.addGeometry(Part.LineSegment(Vector(12, 29, 0), Vector(37, 29, 0)), False)
sketch3.addGeometry(Part.LineSegment(Vector(37, 29, 0), Vector(37, 30, 0)), False)
sketch3.addGeometry(Part.LineSegment(Vector(12, 2.1, 0), Vector(12, 2, 0)), False)
sketch3.addGeometry(Part.LineSegment(Vector(12, 2, 0), Vector(37, 2, 0)), False)
sketch3.addGeometry(Part.LineSegment(Vector(37, 2, 0), Vector(37, 2.1, 0)), False)
sketch3.addGeometry(Part.LineSegment(Vector(37, 2.1, 0), Vector(12, 2.1, 0)), False)
sketch3.addGeometry(Part.LineSegment(Vector(37, 28, 0), Vector(12, 28, 0)), False)
sketch3.addGeometry(Part.LineSegment(Vector(12, 28, 0), Vector(12, 26.5, 0)), False)
sketch3.addGeometry(Part.LineSegment(Vector(12, 26.5, 0), Vector(37, 26.5, 0)), False)
sketch3.addGeometry(Part.LineSegment(Vector(37, 26.5, 0), Vector(37, 28, 0)), False)
sketch3.addGeometry(Part.LineSegment(Vector(12, 3.3, 0), Vector(12, 3.1, 0)), False)
sketch3.addGeometry(Part.LineSegment(Vector(12, 3.1, 0), Vector(37, 3.1, 0)), False)
sketch3.addGeometry(Part.LineSegment(Vector(37, 3.1, 0), Vector(37, 3.3, 0)), False)
sketch3.addGeometry(Part.LineSegment(Vector(37, 3.3, 0), Vector(12, 3.3, 0)), False)
sketch3.addGeometry(Part.LineSegment(Vector(37, 25.5, 0), Vector(12, 25.5, 0)), False)
sketch3.addGeometry(Part.LineSegment(Vector(12, 25.5, 0), Vector(12, 24.1, 0)), False)
sketch3.addGeometry(Part.LineSegment(Vector(12, 24.1, 0), Vector(37, 24.1, 0)), False)
sketch3.addGeometry(Part.LineSegment(Vector(37, 24.1, 0), Vector(37, 25.5, 0)), False)
sketch3.addGeometry(Part.LineSegment(Vector(12, 4.6, 0), Vector(12, 4.3, 0)), False)
sketch3.addGeometry(Part.LineSegment(Vector(12, 4.3, 0), Vector(37, 4.3, 0)), False)
sketch3.addGeometry(Part.LineSegment(Vector(37, 4.3, 0), Vector(37, 4.6, 0)), False)
sketch3.addGeometry(Part.LineSegment(Vector(37, 4.6, 0), Vector(12, 4.6, 0)), False)
sketch3.addGeometry(Part.LineSegment(Vector(37, 23.1, 0), Vector(12, 23.1, 0)), False)
sketch3.addGeometry(Part.LineSegment(Vector(12, 23.1, 0), Vector(12, 21.8, 0)), False)
sketch3.addGeometry(Part.LineSegment(Vector(12, 21.8, 0), Vector(37, 21.8, 0)), False)
sketch3.addGeometry(Part.LineSegment(Vector(37, 21.8, 0), Vector(37, 23.1, 0)), False)
sketch3.addGeometry(Part.LineSegment(Vector(12, 6, 0), Vector(12, 5.6, 0)), False)
sketch3.addGeometry(Part.LineSegment(Vector(12, 5.6, 0), Vector(37, 5.6, 0)), False)
sketch3.addGeometry(Part.LineSegment(Vector(37, 5.6, 0), Vector(37, 6, 0)), False)
sketch3.addGeometry(Part.LineSegment(Vector(37, 6, 0), Vector(12, 6, 0)), False)
sketch3.addGeometry(Part.LineSegment(Vector(37, 20.8, 0), Vector(12, 20.8, 0)), False)
sketch3.addGeometry(Part.LineSegment(Vector(12, 20.8, 0), Vector(12, 19.6, 0)), False)
sketch3.addGeometry(Part.LineSegment(Vector(12, 19.6, 0), Vector(37, 19.6, 0)), False)
sketch3.addGeometry(Part.LineSegment(Vector(37, 19.6, 0), Vector(37, 20.8, 0)), False)
sketch3.addGeometry(Part.LineSegment(Vector(12, 7.5, 0), Vector(12, 7, 0)), False)
sketch3.addGeometry(Part.LineSegment(Vector(12, 7, 0), Vector(37, 7, 0)), False)
sketch3.addGeometry(Part.LineSegment(Vector(37, 7, 0), Vector(37, 7.5, 0)), False)
sketch3.addGeometry(Part.LineSegment(Vector(37, 7.5, 0), Vector(12, 7.5, 0)), False)
sketch3.addGeometry(Part.LineSegment(Vector(37, 18.6, 0), Vector(12, 18.6, 0)), False)
sketch3.addGeometry(Part.LineSegment(Vector(12, 18.6, 0), Vector(12, 17.5, 0)), False)
sketch3.addGeometry(Part.LineSegment(Vector(12, 17.5, 0), Vector(37, 17.5, 0)), False)
sketch3.addGeometry(Part.LineSegment(Vector(37, 17.5, 0), Vector(37, 18.6, 0)), False)
sketch3.addGeometry(Part.LineSegment(Vector(12, 9.1, 0), Vector(12, 8.5, 0)), False)
sketch3.addGeometry(Part.LineSegment(Vector(12, 8.5, 0), Vector(37, 8.5, 0)), False)
sketch3.addGeometry(Part.LineSegment(Vector(37, 8.5, 0), Vector(37, 9.1, 0)), False)
sketch3.addGeometry(Part.LineSegment(Vector(37, 9.1, 0), Vector(12, 9.1, 0)), False)
sketch3.addGeometry(Part.LineSegment(Vector(37, 16.5, 0), Vector(12, 16.5, 0)), False)
sketch3.addGeometry(Part.LineSegment(Vector(12, 16.5, 0), Vector(12, 15.5, 0)), False)
sketch3.addGeometry(Part.LineSegment(Vector(12, 15.5, 0), Vector(37, 15.5, 0)), False)
sketch3.addGeometry(Part.LineSegment(Vector(37, 15.5, 0), Vector(37, 16.5, 0)), False)
sketch3.addGeometry(Part.LineSegment(Vector(12, 10.8, 0), Vector(12, 10.1, 0)), False)
sketch3.addGeometry(Part.LineSegment(Vector(12, 10.1, 0), Vector(37, 10.1, 0)), False)
sketch3.addGeometry(Part.LineSegment(Vector(37, 10.1, 0), Vector(37, 10.8, 0)), False)
sketch3.addGeometry(Part.LineSegment(Vector(37, 10.8, 0), Vector(12, 10.8, 0)), False)
sketch3.addGeometry(Part.LineSegment(Vector(37, 14.5, 0), Vector(12, 14.5, 0)), False)
sketch3.addGeometry(Part.LineSegment(Vector(12, 14.5, 0), Vector(12, 13.6, 0)), False)
sketch3.addGeometry(Part.LineSegment(Vector(12, 13.6, 0), Vector(37, 13.6, 0)), False)
sketch3.addGeometry(Part.LineSegment(Vector(37, 13.6, 0), Vector(37, 14.5, 0)), False)
sketch3.addGeometry(Part.LineSegment(Vector(12, 12.6, 0), Vector(12, 11.8, 0)), False)
sketch3.addGeometry(Part.LineSegment(Vector(12, 11.8, 0), Vector(37, 11.8, 0)), False)
sketch3.addGeometry(Part.LineSegment(Vector(37, 11.8, 0), Vector(37, 12.6, 0)), False)
sketch3.addGeometry(Part.LineSegment(Vector(37, 12.6, 0), Vector(12, 12.6, 0)), False)
sketch3.addConstraint(Sketcher.Constraint("Coincident", 0, 2, 1, 1))
sketch3.addConstraint(Sketcher.Constraint("Coincident", 1, 2, 2, 1))
sketch3.addConstraint(Sketcher.Constraint("Coincident", 2, 2, 3, 1))
sketch3.addConstraint(Sketcher.Constraint("Coincident", 3, 2, 0, 1))
sketch3.addConstraint(Sketcher.Constraint("Coincident", 4, 2, 5, 1))
sketch3.addConstraint(Sketcher.Constraint("Coincident", 5, 2, 6, 1))
sketch3.addConstraint(Sketcher.Constraint("Coincident", 6, 2, 7, 1))
sketch3.addConstraint(Sketcher.Constraint("Coincident", 7, 2, 4, 1))
sketch3.addConstraint(Sketcher.Constraint("Coincident", 8, 2, 9, 1))
sketch3.addConstraint(Sketcher.Constraint("Coincident", 9, 2, 10, 1))
sketch3.addConstraint(Sketcher.Constraint("Coincident", 10, 2, 11, 1))
sketch3.addConstraint(Sketcher.Constraint("Coincident", 11, 2, 8, 1))
sketch3.addConstraint(Sketcher.Constraint("Coincident", 12, 2, 13, 1))
sketch3.addConstraint(Sketcher.Constraint("Coincident", 13, 2, 14, 1))
sketch3.addConstraint(Sketcher.Constraint("Coincident", 14, 2, 15, 1))
sketch3.addConstraint(Sketcher.Constraint("Coincident", 15, 2, 12, 1))
sketch3.addConstraint(Sketcher.Constraint("Coincident", 16, 2, 17, 1))
sketch3.addConstraint(Sketcher.Constraint("Coincident", 17, 2, 18, 1))
sketch3.addConstraint(Sketcher.Constraint("Coincident", 18, 2, 19, 1))
sketch3.addConstraint(Sketcher.Constraint("Coincident", 19, 2, 16, 1))
sketch3.addConstraint(Sketcher.Constraint("Coincident", 20, 2, 21, 1))
sketch3.addConstraint(Sketcher.Constraint("Coincident", 21, 2, 22, 1))
sketch3.addConstraint(Sketcher.Constraint("Coincident", 22, 2, 23, 1))
sketch3.addConstraint(Sketcher.Constraint("Coincident", 23, 2, 20, 1))
sketch3.addConstraint(Sketcher.Constraint("Coincident", 24, 2, 25, 1))
sketch3.addConstraint(Sketcher.Constraint("Coincident", 25, 2, 26, 1))
sketch3.addConstraint(Sketcher.Constraint("Coincident", 26, 2, 27, 1))
sketch3.addConstraint(Sketcher.Constraint("Coincident", 27, 2, 24, 1))
sketch3.addConstraint(Sketcher.Constraint("Coincident", 28, 2, 29, 1))
sketch3.addConstraint(Sketcher.Constraint("Coincident", 29, 2, 30, 1))
sketch3.addConstraint(Sketcher.Constraint("Coincident", 30, 2, 31, 1))
sketch3.addConstraint(Sketcher.Constraint("Coincident", 31, 2, 28, 1))
sketch3.addConstraint(Sketcher.Constraint("Coincident", 32, 2, 33, 1))
sketch3.addConstraint(Sketcher.Constraint("Coincident", 33, 2, 34, 1))
sketch3.addConstraint(Sketcher.Constraint("Coincident", 34, 2, 35, 1))
sketch3.addConstraint(Sketcher.Constraint("Coincident", 35, 2, 32, 1))
sketch3.addConstraint(Sketcher.Constraint("Coincident", 36, 2, 37, 1))
sketch3.addConstraint(Sketcher.Constraint("Coincident", 37, 2, 38, 1))
sketch3.addConstraint(Sketcher.Constraint("Coincident", 38, 2, 39, 1))
sketch3.addConstraint(Sketcher.Constraint("Coincident", 39, 2, 36, 1))
sketch3.addConstraint(Sketcher.Constraint("Coincident", 40, 2, 41, 1))
sketch3.addConstraint(Sketcher.Constraint("Coincident", 41, 2, 42, 1))
sketch3.addConstraint(Sketcher.Constraint("Coincident", 42, 2, 43, 1))
sketch3.addConstraint(Sketcher.Constraint("Coincident", 43, 2, 40, 1))
sketch3.addConstraint(Sketcher.Constraint("Coincident", 44, 2, 45, 1))
sketch3.addConstraint(Sketcher.Constraint("Coincident", 45, 2, 46, 1))
sketch3.addConstraint(Sketcher.Constraint("Coincident", 46, 2, 47, 1))
sketch3.addConstraint(Sketcher.Constraint("Coincident", 47, 2, 44, 1))
sketch3.addConstraint(Sketcher.Constraint("Coincident", 48, 2, 49, 1))
sketch3.addConstraint(Sketcher.Constraint("Coincident", 49, 2, 50, 1))
sketch3.addConstraint(Sketcher.Constraint("Coincident", 50, 2, 51, 1))
sketch3.addConstraint(Sketcher.Constraint("Coincident", 51, 2, 48, 1))
sketch3.addConstraint(Sketcher.Constraint("Coincident", 52, 2, 53, 1))
sketch3.addConstraint(Sketcher.Constraint("Coincident", 53, 2, 54, 1))
sketch3.addConstraint(Sketcher.Constraint("Coincident", 54, 2, 55, 1))
sketch3.addConstraint(Sketcher.Constraint("Coincident", 55, 2, 52, 1))
sketch3.addConstraint(Sketcher.Constraint("Coincident", 56, 2, 57, 1))
sketch3.addConstraint(Sketcher.Constraint("Coincident", 57, 2, 58, 1))
sketch3.addConstraint(Sketcher.Constraint("Coincident", 58, 2, 59, 1))
sketch3.addConstraint(Sketcher.Constraint("Coincident", 59, 2, 56, 1))
sketch3.addConstraint(Sketcher.Constraint("Coincident", 60, 2, 61, 1))
sketch3.addConstraint(Sketcher.Constraint("Coincident", 61, 2, 62, 1))
sketch3.addConstraint(Sketcher.Constraint("Coincident", 62, 2, 63, 1))
sketch3.addConstraint(Sketcher.Constraint("Coincident", 63, 2, 60, 1))
sketch3.addConstraint(Sketcher.Constraint("Coincident", 64, 2, 65, 1))
sketch3.addConstraint(Sketcher.Constraint("Coincident", 65, 2, 66, 1))
sketch3.addConstraint(Sketcher.Constraint("Coincident", 66, 2, 67, 1))
sketch3.addConstraint(Sketcher.Constraint("Coincident", 67, 2, 64, 1))
sketch3.addConstraint(Sketcher.Constraint("Vertical", 0))
sketch3.addConstraint(Sketcher.Constraint("Horizontal", 1))
sketch3.addConstraint(Sketcher.Constraint("Vertical", 2))
sketch3.addConstraint(Sketcher.Constraint("Horizontal", 3))
sketch3.addConstraint(Sketcher.Constraint("Horizontal", 4))
sketch3.addConstraint(Sketcher.Constraint("Vertical", 5))
sketch3.addConstraint(Sketcher.Constraint("Horizontal", 6))
sketch3.addConstraint(Sketcher.Constraint("Vertical", 7))
sketch3.addConstraint(Sketcher.Constraint("Vertical", 8))
sketch3.addConstraint(Sketcher.Constraint("Horizontal", 9))
sketch3.addConstraint(Sketcher.Constraint("Vertical", 10))
sketch3.addConstraint(Sketcher.Constraint("Horizontal", 11))
sketch3.addConstraint(Sketcher.Constraint("Horizontal", 12))
sketch3.addConstraint(Sketcher.Constraint("Vertical", 13))
sketch3.addConstraint(Sketcher.Constraint("Horizontal", 14))
sketch3.addConstraint(Sketcher.Constraint("Vertical", 15))
sketch3.addConstraint(Sketcher.Constraint("Vertical", 16))
sketch3.addConstraint(Sketcher.Constraint("Horizontal", 17))
sketch3.addConstraint(Sketcher.Constraint("Vertical", 18))
sketch3.addConstraint(Sketcher.Constraint("Horizontal", 19))
sketch3.addConstraint(Sketcher.Constraint("Horizontal", 20))
sketch3.addConstraint(Sketcher.Constraint("Vertical", 21))
sketch3.addConstraint(Sketcher.Constraint("Horizontal", 22))
sketch3.addConstraint(Sketcher.Constraint("Vertical", 23))
sketch3.addConstraint(Sketcher.Constraint("Vertical", 24))
sketch3.addConstraint(Sketcher.Constraint("Horizontal", 25))
sketch3.addConstraint(Sketcher.Constraint("Vertical", 26))
sketch3.addConstraint(Sketcher.Constraint("Horizontal", 27))
sketch3.addConstraint(Sketcher.Constraint("Horizontal", 28))
sketch3.addConstraint(Sketcher.Constraint("Vertical", 29))
sketch3.addConstraint(Sketcher.Constraint("Horizontal", 30))
sketch3.addConstraint(Sketcher.Constraint("Vertical", 31))
sketch3.addConstraint(Sketcher.Constraint("Vertical", 32))
sketch3.addConstraint(Sketcher.Constraint("Horizontal", 33))
sketch3.addConstraint(Sketcher.Constraint("Vertical", 34))
sketch3.addConstraint(Sketcher.Constraint("Horizontal", 35))
sketch3.addConstraint(Sketcher.Constraint("Horizontal", 36))
sketch3.addConstraint(Sketcher.Constraint("Vertical", 37))
sketch3.addConstraint(Sketcher.Constraint("Horizontal", 38))
sketch3.addConstraint(Sketcher.Constraint("Vertical", 39))
sketch3.addConstraint(Sketcher.Constraint("Vertical", 40))
sketch3.addConstraint(Sketcher.Constraint("Horizontal", 41))
sketch3.addConstraint(Sketcher.Constraint("Vertical", 42))
sketch3.addConstraint(Sketcher.Constraint("Horizontal", 43))
sketch3.addConstraint(Sketcher.Constraint("Horizontal", 44))
sketch3.addConstraint(Sketcher.Constraint("Vertical", 45))
sketch3.addConstraint(Sketcher.Constraint("Horizontal", 46))
sketch3.addConstraint(Sketcher.Constraint("Vertical", 47))
sketch3.addConstraint(Sketcher.Constraint("Vertical", 48))
sketch3.addConstraint(Sketcher.Constraint("Horizontal", 49))
sketch3.addConstraint(Sketcher.Constraint("Vertical", 50))
sketch3.addConstraint(Sketcher.Constraint("Horizontal", 51))
sketch3.addConstraint(Sketcher.Constraint("Horizontal", 52))
sketch3.addConstraint(Sketcher.Constraint("Vertical", 53))
sketch3.addConstraint(Sketcher.Constraint("Horizontal", 54))
sketch3.addConstraint(Sketcher.Constraint("Vertical", 55))
sketch3.addConstraint(Sketcher.Constraint("Vertical", 56))
sketch3.addConstraint(Sketcher.Constraint("Horizontal", 57))
sketch3.addConstraint(Sketcher.Constraint("Vertical", 58))
sketch3.addConstraint(Sketcher.Constraint("Horizontal", 59))
sketch3.addConstraint(Sketcher.Constraint("Horizontal", 60))
sketch3.addConstraint(Sketcher.Constraint("Vertical", 61))
sketch3.addConstraint(Sketcher.Constraint("Horizontal", 62))
sketch3.addConstraint(Sketcher.Constraint("Vertical", 63))
sketch3.addConstraint(Sketcher.Constraint("Vertical", 64))
sketch3.addConstraint(Sketcher.Constraint("Horizontal", 65))
sketch3.addConstraint(Sketcher.Constraint("Vertical", 66))
sketch3.addConstraint(Sketcher.Constraint("Horizontal", 67))
sketch3.addConstraint(Sketcher.Constraint("PointOnObject", 0, 2, -1))
sketch3.addConstraint(Sketcher.Constraint("Vertical", 3, 2, 4, 2))
sketch3.addConstraint(Sketcher.Constraint("Vertical", 2, 2, 6, 2))
sketch3.addConstraint(Sketcher.Constraint("Vertical", 5, 2, 8, 2))
sketch3.addConstraint(Sketcher.Constraint("Vertical", 7, 2, 9, 2))
sketch3.addConstraint(Sketcher.Constraint("Vertical", 11, 2, 12, 2))
sketch3.addConstraint(Sketcher.Constraint("Vertical", 10, 2, 14, 2))
sketch3.addConstraint(Sketcher.Constraint("Vertical", 13, 2, 16, 2))
sketch3.addConstraint(Sketcher.Constraint("Vertical", 15, 2, 17, 2))
sketch3.addConstraint(Sketcher.Constraint("Vertical", 19, 2, 20, 2))
sketch3.addConstraint(Sketcher.Constraint("Vertical", 18, 2, 22, 2))
sketch3.addConstraint(Sketcher.Constraint("Vertical", 21, 2, 24, 2))
sketch3.addConstraint(Sketcher.Constraint("Vertical", 23, 2, 25, 2))
sketch3.addConstraint(Sketcher.Constraint("Vertical", 27, 2, 28, 2))
sketch3.addConstraint(Sketcher.Constraint("Vertical", 26, 2, 30, 2))
sketch3.addConstraint(Sketcher.Constraint("Vertical", 29, 2, 32, 2))
sketch3.addConstraint(Sketcher.Constraint("Vertical", 31, 2, 33, 2))
sketch3.addConstraint(Sketcher.Constraint("Vertical", 35, 2, 36, 2))
sketch3.addConstraint(Sketcher.Constraint("Vertical", 34, 2, 38, 2))
sketch3.addConstraint(Sketcher.Constraint("Vertical", 37, 2, 40, 2))
sketch3.addConstraint(Sketcher.Constraint("Vertical", 39, 2, 41, 2))
sketch3.addConstraint(Sketcher.Constraint("Vertical", 43, 2, 44, 2))
sketch3.addConstraint(Sketcher.Constraint("Vertical", 42, 2, 46, 2))
sketch3.addConstraint(Sketcher.Constraint("Vertical", 45, 2, 48, 2))
sketch3.addConstraint(Sketcher.Constraint("Vertical", 47, 2, 49, 2))
sketch3.addConstraint(Sketcher.Constraint("Vertical", 51, 2, 52, 2))
sketch3.addConstraint(Sketcher.Constraint("Vertical", 50, 2, 54, 2))
sketch3.addConstraint(Sketcher.Constraint("Vertical", 53, 2, 56, 2))
sketch3.addConstraint(Sketcher.Constraint("Vertical", 55, 2, 57, 2))
sketch3.addConstraint(Sketcher.Constraint("Vertical", 59, 2, 60, 2))
sketch3.addConstraint(Sketcher.Constraint("Vertical", 58, 2, 62, 2))
sketch3.addConstraint(Sketcher.Constraint("Vertical", 61, 2, 64, 2))
sketch3.addConstraint(Sketcher.Constraint("Vertical", 63, 2, 65, 2))
sketch3.addConstraint(Sketcher.Constraint("Equal", 2, 5))
sketch3.addConstraint(Sketcher.Constraint("Equal", 7, 53))
sketch3.addConstraint(Sketcher.Constraint("DistanceX", 1, 1, 1, 2, 25.0))
sketch3.addConstraint(Sketcher.Constraint("DistanceY", 0, 2, 0, 1, 1.0))
sketch3.addConstraint(Sketcher.Constraint("DistanceY", 8, 2, 8, 1, 0.1))
sketch3.addConstraint(Sketcher.Constraint("DistanceY", 13, 2, 13, 1, 1.5))
sketch3.addConstraint(Sketcher.Constraint("DistanceY", 16, 2, 16, 1, 0.2))
sketch3.addConstraint(Sketcher.Constraint("DistanceY", 21, 2, 21, 1, 1.4))
sketch3.addConstraint(Sketcher.Constraint("DistanceY", 24, 2, 24, 1, 0.3))
sketch3.addConstraint(Sketcher.Constraint("DistanceY", 29, 2, 29, 1, 1.3))
sketch3.addConstraint(Sketcher.Constraint("DistanceY", 32, 2, 32, 1, 0.4))
sketch3.addConstraint(Sketcher.Constraint("DistanceY", 37, 2, 37, 1, 1.2))
sketch3.addConstraint(Sketcher.Constraint("DistanceY", 40, 2, 40, 1, 0.5))
sketch3.addConstraint(Sketcher.Constraint("DistanceY", 45, 2, 45, 1, 1.1))
sketch3.addConstraint(Sketcher.Constraint("DistanceY", 48, 2, 48, 1, 0.6))
sketch3.addConstraint(Sketcher.Constraint("DistanceY", 56, 2, 56, 1, 0.7))
sketch3.addConstraint(Sketcher.Constraint("DistanceY", 61, 2, 61, 1, 0.9))
sketch3.addConstraint(Sketcher.Constraint("DistanceY", 64, 2, 64, 1, 0.8))
sketch3.addConstraint(Sketcher.Constraint("DistanceX", -1, 1, 1, 2, 37.0))
sketch3.addConstraint(Sketcher.Constraint("DistanceY", -1, 1, 4, 2, 30.0))
sketch3.addConstraint(Sketcher.Constraint("DistanceY", -1, 1, 8, 2, 2.0))
sketch3.addConstraint(Sketcher.Constraint("DistanceY", -1, 1, 12, 2, 28.0))
sketch3.addConstraint(Sketcher.Constraint("DistanceY", -1, 1, 34, 2, 6.0))
sketch3.addConstraint(Sketcher.Constraint("DistanceY", -1, 1, 40, 2, 7.0))
sketch3.addConstraint(Sketcher.Constraint("DistanceY", -1, 1, 16, 2, 3.1))
sketch3.addConstraint(Sketcher.Constraint("DistanceY", -1, 1, 20, 2, 25.5))
sketch3.addConstraint(Sketcher.Constraint("DistanceY", -1, 1, 24, 2, 4.3))
sketch3.addConstraint(Sketcher.Constraint("DistanceY", -1, 1, 28, 2, 23.1))
sketch3.addConstraint(Sketcher.Constraint("DistanceY", -1, 1, 36, 2, 20.8))
sketch3.addConstraint(Sketcher.Constraint("DistanceY", -1, 1, 44, 2, 18.6))
sketch3.addConstraint(Sketcher.Constraint("DistanceY", -1, 1, 48, 2, 8.5))
sketch3.addConstraint(Sketcher.Constraint("DistanceY", -1, 1, 52, 2, 16.5))
sketch3.addConstraint(Sketcher.Constraint("DistanceY", -1, 1, 56, 2, 10.1))
sketch3.addConstraint(Sketcher.Constraint("DistanceY", -1, 1, 60, 2, 14.5))
sketch3.addConstraint(Sketcher.Constraint("DistanceY", -1, 1, 64, 2, 11.8))
pad3 = body.newObject("PartDesign::Pad", "Pad002")
pad3.Profile = sketch3
pad3.Length = 4

doc.recompute()
